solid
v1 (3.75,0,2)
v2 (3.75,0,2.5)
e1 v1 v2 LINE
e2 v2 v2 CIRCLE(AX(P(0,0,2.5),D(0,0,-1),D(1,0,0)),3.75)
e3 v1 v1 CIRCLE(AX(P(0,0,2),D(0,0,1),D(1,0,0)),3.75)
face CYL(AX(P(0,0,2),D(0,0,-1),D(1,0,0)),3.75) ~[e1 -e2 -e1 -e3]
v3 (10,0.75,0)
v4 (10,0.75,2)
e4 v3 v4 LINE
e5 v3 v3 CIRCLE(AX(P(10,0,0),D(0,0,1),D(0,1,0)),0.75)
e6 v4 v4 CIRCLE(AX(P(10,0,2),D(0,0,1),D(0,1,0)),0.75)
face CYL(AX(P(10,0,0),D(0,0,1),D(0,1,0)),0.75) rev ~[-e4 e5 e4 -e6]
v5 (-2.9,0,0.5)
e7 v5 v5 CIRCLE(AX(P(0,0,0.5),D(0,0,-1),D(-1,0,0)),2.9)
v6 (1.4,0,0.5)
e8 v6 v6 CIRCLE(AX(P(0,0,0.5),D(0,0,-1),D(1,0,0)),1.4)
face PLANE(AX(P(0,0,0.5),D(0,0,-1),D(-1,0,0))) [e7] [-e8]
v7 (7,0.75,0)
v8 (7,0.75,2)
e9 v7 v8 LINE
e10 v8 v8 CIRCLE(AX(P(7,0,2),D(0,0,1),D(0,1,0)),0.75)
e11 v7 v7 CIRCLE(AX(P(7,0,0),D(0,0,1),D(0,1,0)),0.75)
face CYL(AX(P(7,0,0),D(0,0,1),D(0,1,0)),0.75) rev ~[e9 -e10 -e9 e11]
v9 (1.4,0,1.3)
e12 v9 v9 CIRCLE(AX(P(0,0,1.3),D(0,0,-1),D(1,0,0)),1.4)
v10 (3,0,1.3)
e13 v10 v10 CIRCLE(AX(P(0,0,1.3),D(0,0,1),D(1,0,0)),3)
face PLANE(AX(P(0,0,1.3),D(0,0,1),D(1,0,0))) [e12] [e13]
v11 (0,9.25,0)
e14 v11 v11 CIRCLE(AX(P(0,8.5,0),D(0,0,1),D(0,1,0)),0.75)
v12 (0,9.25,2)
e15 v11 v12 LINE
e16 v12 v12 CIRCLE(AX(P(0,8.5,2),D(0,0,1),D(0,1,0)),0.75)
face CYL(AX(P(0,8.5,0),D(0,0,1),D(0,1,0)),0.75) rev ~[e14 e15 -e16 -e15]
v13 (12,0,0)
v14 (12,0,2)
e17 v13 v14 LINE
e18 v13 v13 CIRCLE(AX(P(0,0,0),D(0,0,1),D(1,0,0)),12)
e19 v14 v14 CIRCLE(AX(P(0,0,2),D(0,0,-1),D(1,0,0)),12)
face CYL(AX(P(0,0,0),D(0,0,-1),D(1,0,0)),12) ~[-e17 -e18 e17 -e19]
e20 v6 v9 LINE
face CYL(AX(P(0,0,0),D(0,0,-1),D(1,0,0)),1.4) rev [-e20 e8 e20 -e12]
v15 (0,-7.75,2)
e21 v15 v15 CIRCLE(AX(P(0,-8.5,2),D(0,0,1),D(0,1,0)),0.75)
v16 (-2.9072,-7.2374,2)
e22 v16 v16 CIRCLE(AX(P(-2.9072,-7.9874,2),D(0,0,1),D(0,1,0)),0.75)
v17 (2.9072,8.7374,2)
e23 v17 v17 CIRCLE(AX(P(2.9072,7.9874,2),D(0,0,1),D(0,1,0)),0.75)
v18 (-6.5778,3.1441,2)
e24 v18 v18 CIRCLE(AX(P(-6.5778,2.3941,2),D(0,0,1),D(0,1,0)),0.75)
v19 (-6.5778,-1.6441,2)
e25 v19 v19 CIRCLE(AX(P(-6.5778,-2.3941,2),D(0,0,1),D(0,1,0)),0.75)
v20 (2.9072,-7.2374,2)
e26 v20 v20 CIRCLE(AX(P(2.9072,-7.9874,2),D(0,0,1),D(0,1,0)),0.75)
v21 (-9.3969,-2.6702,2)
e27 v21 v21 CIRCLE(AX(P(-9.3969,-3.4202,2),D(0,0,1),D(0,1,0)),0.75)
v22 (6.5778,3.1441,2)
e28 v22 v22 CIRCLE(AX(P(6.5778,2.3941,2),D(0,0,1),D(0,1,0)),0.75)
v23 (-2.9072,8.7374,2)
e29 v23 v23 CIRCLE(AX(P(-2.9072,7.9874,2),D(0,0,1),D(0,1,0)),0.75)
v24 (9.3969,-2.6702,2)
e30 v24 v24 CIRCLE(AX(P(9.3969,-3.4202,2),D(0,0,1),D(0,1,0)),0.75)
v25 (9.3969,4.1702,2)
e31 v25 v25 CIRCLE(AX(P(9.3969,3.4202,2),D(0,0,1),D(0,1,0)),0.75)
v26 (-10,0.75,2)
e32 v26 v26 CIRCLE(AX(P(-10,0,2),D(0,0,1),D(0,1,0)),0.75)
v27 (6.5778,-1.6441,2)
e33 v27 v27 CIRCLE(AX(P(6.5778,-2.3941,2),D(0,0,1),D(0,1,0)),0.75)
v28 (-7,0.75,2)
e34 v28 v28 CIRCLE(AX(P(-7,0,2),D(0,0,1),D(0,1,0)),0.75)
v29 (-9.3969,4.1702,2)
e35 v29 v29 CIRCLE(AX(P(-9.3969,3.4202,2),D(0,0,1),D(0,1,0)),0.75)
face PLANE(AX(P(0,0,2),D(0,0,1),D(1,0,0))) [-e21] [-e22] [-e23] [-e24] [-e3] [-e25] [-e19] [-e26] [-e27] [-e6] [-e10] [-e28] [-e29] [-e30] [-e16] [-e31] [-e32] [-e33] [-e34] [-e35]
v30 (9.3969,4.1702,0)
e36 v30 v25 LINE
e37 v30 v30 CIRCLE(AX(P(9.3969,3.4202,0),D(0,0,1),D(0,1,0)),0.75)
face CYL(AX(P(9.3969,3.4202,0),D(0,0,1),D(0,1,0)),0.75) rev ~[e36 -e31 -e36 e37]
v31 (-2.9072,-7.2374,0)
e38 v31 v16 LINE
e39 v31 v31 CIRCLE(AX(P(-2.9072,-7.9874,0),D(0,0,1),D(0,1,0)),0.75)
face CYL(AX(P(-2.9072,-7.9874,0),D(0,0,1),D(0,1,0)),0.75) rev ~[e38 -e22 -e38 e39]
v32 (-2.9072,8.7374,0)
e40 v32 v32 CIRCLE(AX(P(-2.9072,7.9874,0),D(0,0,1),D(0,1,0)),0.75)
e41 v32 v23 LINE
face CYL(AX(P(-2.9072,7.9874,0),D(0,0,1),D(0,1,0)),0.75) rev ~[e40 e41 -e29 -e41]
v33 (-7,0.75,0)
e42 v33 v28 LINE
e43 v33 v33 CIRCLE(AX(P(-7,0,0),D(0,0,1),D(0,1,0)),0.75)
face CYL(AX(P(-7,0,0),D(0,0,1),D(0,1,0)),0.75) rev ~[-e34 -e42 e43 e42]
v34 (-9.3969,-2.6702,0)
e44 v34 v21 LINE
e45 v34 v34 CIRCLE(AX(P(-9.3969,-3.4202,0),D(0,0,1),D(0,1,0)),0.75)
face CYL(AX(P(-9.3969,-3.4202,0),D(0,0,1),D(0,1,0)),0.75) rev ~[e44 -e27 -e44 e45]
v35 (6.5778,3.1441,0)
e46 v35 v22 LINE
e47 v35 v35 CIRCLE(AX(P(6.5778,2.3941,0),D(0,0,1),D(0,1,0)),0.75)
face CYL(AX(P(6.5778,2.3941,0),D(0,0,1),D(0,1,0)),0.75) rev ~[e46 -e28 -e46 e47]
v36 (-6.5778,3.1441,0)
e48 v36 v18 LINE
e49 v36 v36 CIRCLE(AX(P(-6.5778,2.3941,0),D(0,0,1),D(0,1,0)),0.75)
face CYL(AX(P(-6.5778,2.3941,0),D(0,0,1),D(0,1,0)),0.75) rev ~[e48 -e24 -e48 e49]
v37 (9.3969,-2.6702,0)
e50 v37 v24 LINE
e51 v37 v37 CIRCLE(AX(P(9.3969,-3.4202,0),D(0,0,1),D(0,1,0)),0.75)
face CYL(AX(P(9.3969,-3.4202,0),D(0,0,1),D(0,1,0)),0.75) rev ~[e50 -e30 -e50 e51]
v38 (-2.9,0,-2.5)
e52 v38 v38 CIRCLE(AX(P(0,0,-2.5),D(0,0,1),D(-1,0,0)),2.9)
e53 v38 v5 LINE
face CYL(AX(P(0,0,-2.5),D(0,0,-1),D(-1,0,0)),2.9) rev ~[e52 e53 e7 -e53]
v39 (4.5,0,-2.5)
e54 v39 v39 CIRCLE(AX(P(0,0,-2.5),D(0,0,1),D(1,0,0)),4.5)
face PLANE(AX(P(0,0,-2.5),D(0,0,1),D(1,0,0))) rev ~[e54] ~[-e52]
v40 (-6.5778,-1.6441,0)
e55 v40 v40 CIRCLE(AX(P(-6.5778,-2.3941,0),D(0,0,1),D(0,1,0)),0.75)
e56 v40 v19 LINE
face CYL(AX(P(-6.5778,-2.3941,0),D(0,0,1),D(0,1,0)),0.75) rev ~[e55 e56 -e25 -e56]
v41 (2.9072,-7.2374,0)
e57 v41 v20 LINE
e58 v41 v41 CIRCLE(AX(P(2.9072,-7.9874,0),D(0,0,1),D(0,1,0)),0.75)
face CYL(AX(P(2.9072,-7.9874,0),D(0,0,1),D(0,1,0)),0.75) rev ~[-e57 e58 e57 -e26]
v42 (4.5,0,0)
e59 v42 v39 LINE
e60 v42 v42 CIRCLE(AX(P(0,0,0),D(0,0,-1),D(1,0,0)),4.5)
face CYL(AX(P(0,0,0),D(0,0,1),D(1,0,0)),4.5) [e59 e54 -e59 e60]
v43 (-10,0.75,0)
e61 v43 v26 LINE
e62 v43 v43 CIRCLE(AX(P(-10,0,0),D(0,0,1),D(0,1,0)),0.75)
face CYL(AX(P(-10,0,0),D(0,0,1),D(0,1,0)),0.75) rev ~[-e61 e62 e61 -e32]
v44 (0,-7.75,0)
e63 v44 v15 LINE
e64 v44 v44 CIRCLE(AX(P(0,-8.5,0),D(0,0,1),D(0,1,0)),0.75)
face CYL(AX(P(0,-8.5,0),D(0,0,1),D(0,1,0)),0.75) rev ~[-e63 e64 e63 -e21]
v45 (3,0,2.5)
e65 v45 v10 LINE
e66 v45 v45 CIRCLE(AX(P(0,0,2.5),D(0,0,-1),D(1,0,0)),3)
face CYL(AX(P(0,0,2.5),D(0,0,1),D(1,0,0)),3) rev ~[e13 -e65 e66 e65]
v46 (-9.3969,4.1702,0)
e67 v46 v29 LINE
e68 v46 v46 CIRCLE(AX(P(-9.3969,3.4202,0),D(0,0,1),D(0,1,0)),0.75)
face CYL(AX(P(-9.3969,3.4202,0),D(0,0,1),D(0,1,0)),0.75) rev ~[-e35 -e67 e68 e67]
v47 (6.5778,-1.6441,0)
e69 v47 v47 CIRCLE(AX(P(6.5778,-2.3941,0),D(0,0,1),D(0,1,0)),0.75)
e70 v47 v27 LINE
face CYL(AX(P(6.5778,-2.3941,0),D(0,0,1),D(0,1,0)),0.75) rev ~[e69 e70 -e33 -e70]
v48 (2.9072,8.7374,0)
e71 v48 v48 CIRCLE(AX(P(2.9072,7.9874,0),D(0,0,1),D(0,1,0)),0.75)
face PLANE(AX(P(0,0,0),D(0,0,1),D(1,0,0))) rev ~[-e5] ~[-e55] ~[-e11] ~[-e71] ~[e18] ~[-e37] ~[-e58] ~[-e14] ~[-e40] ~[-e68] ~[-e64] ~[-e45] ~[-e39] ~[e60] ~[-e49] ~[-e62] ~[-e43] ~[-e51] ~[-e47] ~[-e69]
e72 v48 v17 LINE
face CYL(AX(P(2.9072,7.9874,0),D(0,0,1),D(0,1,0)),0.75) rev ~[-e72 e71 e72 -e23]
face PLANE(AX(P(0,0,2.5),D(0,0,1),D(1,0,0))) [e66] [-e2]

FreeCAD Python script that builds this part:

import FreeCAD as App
import Part
import Sketcher
from FreeCAD import Vector
Q = App.Units.Quantity

doc = App.newDocument("Part")
params = doc.addObject("Spreadsheet::Sheet", "Params")
for row, (alias, value) in enumerate([
    ("sketch1_diameter", "24 mm"),
    ("pad1_length", "2 mm"),
    ("sketch2_diameter", "9 mm"),
    ("pad2_length", "2.5 mm"),
    ("sketch3_diameter", "5.8 mm"),
    ("pocket1_length", "3 mm"),
    ("sketch4_diameter", "7.5 mm"),
    ("pad3_length", "0.5 mm"),
    ("sketch5_diameter", "6 mm"),
    ("pocket2_length", "1.2 mm"),
    ("sketch6_diameter", "2.8 mm"),
    ("sketch7_diameter", "1.5 mm"),
    ("hole_diameter", "1.5 mm"),
    ("hole_depth", "8 mm"),
    ("sketch8_diameter", "1.5 mm"),
    ("hole2_diameter", "1.5 mm"),
    ("hole2_depth", "8 mm"),
], start=1):
    params.set(f"A{row}", alias)
    params.set(f"B{row}", "=" + value)
    params.setAlias(f"B{row}", alias)

body = doc.addObject("PartDesign::Body", "Body")

# Sketch on XY plane
sketch1 = body.newObject("Sketcher::SketchObject", "Sketch")
sketch1.AttachmentSupport = (doc.getObject("XY_Plane"), [""])
sketch1.MapMode = "FlatFace"
sketch1.addGeometry(Part.Circle(Vector(0, 0, 0), Vector(0, 0, 1), 12), False)
sketch1.addConstraint(Sketcher.Constraint("Coincident", 0, 3, -1, 1))
sketch1.addConstraint(Sketcher.Constraint("Diameter", 0, Q("24 mm")))
sketch1.setExpression("Constraints[1]", "Params.sketch1_diameter")
pad1 = body.newObject("PartDesign::Pad", "Pad")
pad1.Profile = sketch1
pad1.setExpression("Length", "Params.pad1_length")

# Sketch on XY plane
sketch2 = body.newObject("Sketcher::SketchObject", "Sketch001")
sketch2.AttachmentSupport = (doc.getObject("XY_Plane"), [""])
sketch2.MapMode = "FlatFace"
sketch2.addGeometry(Part.Circle(Vector(0, 0, 0), Vector(0, 0, 1), 4.5), False)
sketch2.addConstraint(Sketcher.Constraint("Coincident", 0, 3, -1, 1))
sketch2.addConstraint(Sketcher.Constraint("Diameter", 0, Q("9 mm")))
sketch2.setExpression("Constraints[1]", "Params.sketch2_diameter")
pad2 = body.newObject("PartDesign::Pad", "Pad001")
pad2.Profile = sketch2
pad2.setExpression("Length", "Params.pad2_length")
pad2.Reversed = True

# Sketch on XY plane
sketch3 = body.newObject("Sketcher::SketchObject", "Sketch002")
sketch3.AttachmentSupport = (doc.getObject("XY_Plane"), [""])
sketch3.MapMode = "FlatFace"
sketch3.AttachmentOffset = App.Placement(Vector(0, 0, -2.5), App.Rotation())
sketch3.addGeometry(Part.Circle(Vector(0, 0, 0), Vector(0, 0, 1), 2.9), False)
sketch3.addConstraint(Sketcher.Constraint("Coincident", 0, 3, -1, 1))
sketch3.addConstraint(Sketcher.Constraint("Diameter", 0, Q("5.8 mm")))
sketch3.setExpression("Constraints[1]", "Params.sketch3_diameter")
pocket1 = body.newObject("PartDesign::Pocket", "Pocket")
pocket1.Profile = sketch3
pocket1.setExpression("Length", "Params.pocket1_length")
pocket1.Reversed = True

# Sketch on XY plane
sketch4 = body.newObject("Sketcher::SketchObject", "Sketch003")
sketch4.AttachmentSupport = (doc.getObject("XY_Plane"), [""])
sketch4.MapMode = "FlatFace"
sketch4.AttachmentOffset = App.Placement(Vector(0, 0, 2), App.Rotation())
sketch4.addGeometry(Part.Circle(Vector(0, 0, 0), Vector(0, 0, 1), 3.8), False)
sketch4.addConstraint(Sketcher.Constraint("Coincident", 0, 3, -1, 1))
sketch4.addConstraint(Sketcher.Constraint("Diameter", 0, Q("7.5 mm")))
sketch4.setExpression("Constraints[1]", "Params.sketch4_diameter")
pad3 = body.newObject("PartDesign::Pad", "Pad002")
pad3.Profile = sketch4
pad3.setExpression("Length", "Params.pad3_length")

# Sketch on XY plane
sketch5 = body.newObject("Sketcher::SketchObject", "Sketch004")
sketch5.AttachmentSupport = (doc.getObject("XY_Plane"), [""])
sketch5.MapMode = "FlatFace"
sketch5.AttachmentOffset = App.Placement(Vector(0, 0, 2.5), App.Rotation())
sketch5.addGeometry(Part.Circle(Vector(0, 0, 0), Vector(0, 0, 1), 3), False)
sketch5.addConstraint(Sketcher.Constraint("Coincident", 0, 3, -1, 1))
sketch5.addConstraint(Sketcher.Constraint("Diameter", 0, Q("6 mm")))
sketch5.setExpression("Constraints[1]", "Params.sketch5_diameter")
pocket2 = body.newObject("PartDesign::Pocket", "Pocket001")
pocket2.Profile = sketch5
pocket2.setExpression("Length", "Params.pocket2_length")

# Sketch on XY plane
sketch6 = body.newObject("Sketcher::SketchObject", "Sketch005")
sketch6.AttachmentSupport = (doc.getObject("XY_Plane"), [""])
sketch6.MapMode = "FlatFace"
sketch6.addGeometry(Part.Circle(Vector(0, 0, 0), Vector(0, 0, 1), 1.4), False)
sketch6.addConstraint(Sketcher.Constraint("Coincident", 0, 3, -1, 1))
sketch6.addConstraint(Sketcher.Constraint("Diameter", 0, Q("2.8 mm")))
sketch6.setExpression("Constraints[1]", "Params.sketch6_diameter")
pocket3 = body.newObject("PartDesign::Pocket", "Pocket002")
pocket3.Profile = sketch6
pocket3.Type = "ThroughAll"
pocket3.Reversed = True

# Sketch on XY plane
sketch7 = body.newObject("Sketcher::SketchObject", "Sketch006")
sketch7.AttachmentSupport = (doc.getObject("XY_Plane"), [""])
sketch7.MapMode = "FlatFace"
sketch7.addGeometry(Part.Circle(Vector(0, 8.5, 0), Vector(0, 0, 1), 0.8), False)
sketch7.addGeometry(Part.Circle(Vector(0, -8.5, 0), Vector(0, 0, 1), 0.8), False)
sketch7.addGeometry(Part.Circle(Vector(2.9, 8, 0), Vector(0, 0, 1), 0.8), False)
sketch7.addGeometry(Part.Circle(Vector(-2.9, 8, 0), Vector(0, 0, 1), 0.8), False)
sketch7.addGeometry(Part.Circle(Vector(2.9, -8, 0), Vector(0, 0, 1), 0.8), False)
sketch7.addGeometry(Part.Circle(Vector(-2.9, -8, 0), Vector(0, 0, 1), 0.8), False)
sketch7.addConstraint(Sketcher.Constraint("Equal", 0, 1))
sketch7.addConstraint(Sketcher.Constraint("Equal", 1, 2))
sketch7.addConstraint(Sketcher.Constraint("Equal", 2, 3))
sketch7.addConstraint(Sketcher.Constraint("Equal", 3, 4))
sketch7.addConstraint(Sketcher.Constraint("Equal", 4, 5))
sketch7.addConstraint(Sketcher.Constraint("Symmetric", 0, 3, 1, 3, -1, 1))
sketch7.addConstraint(Sketcher.Constraint("Symmetric", 3, 3, 4, 3, -1, 1))
sketch7.addConstraint(Sketcher.Constraint("Symmetric", 2, 3, 5, 3, -1, 1))
sketch7.addConstraint(Sketcher.Constraint("Symmetric", 2, 3, 3, 3, -2))
sketch7.addConstraint(Sketcher.Constraint("PointOnObject", 0, 3, -2))
sketch7.addConstraint(Sketcher.Constraint("Diameter", 0, Q("1.5 mm")))
sketch7.addConstraint(Sketcher.Constraint("DistanceY", 1, 3, 0, 3, Q("17 mm")))
sketch7.addConstraint(Sketcher.Constraint("DistanceX", -1, 1, 2, 3, Q("2.9072 mm")))
sketch7.addConstraint(Sketcher.Constraint("DistanceY", -1, 1, 2, 3, Q("7.9874 mm")))
sketch7.setExpression("Constraints[10]", "Params.sketch7_diameter")
doc.recompute()
hole = body.newObject("PartDesign::Hole", "Hole")
hole.Profile = sketch7
hole.ThreadType = "None"
hole.setExpression("Diameter", "Params.hole_diameter")
hole.DepthType = "Dimension"
hole.setExpression("Depth", "Params.hole_depth")
hole.DrillPoint = "Angled"
hole.DrillPointAngle = 118
hole.Reversed = True

# Sketch on XY plane
sketch8 = body.newObject("Sketcher::SketchObject", "Sketch007")
sketch8.AttachmentSupport = (doc.getObject("XY_Plane"), [""])
sketch8.MapMode = "FlatFace"
sketch8.addGeometry(Part.Circle(Vector(-10, 0, 0), Vector(0, 0, 1), 0.8), False)
sketch8.addGeometry(Part.Circle(Vector(-9.4, 3.4, 0), Vector(0, 0, 1), 0.8), False)
sketch8.addGeometry(Part.Circle(Vector(-9.4, -3.4, 0), Vector(0, 0, 1), 0.8), False)
sketch8.addGeometry(Part.Circle(Vector(10, 0, 0), Vector(0, 0, 1), 0.8), False)
sketch8.addGeometry(Part.Circle(Vector(9.4, 3.4, 0), Vector(0, 0, 1), 0.8), False)
sketch8.addGeometry(Part.Circle(Vector(9.4, -3.4, 0), Vector(0, 0, 1), 0.8), False)
sketch8.addGeometry(Part.Circle(Vector(-6.6, 2.4, 0), Vector(0, 0, 1), 0.8), False)
sketch8.addGeometry(Part.Circle(Vector(-7, 0, 0), Vector(0, 0, 1), 0.8), False)
sketch8.addGeometry(Part.Circle(Vector(-6.6, -2.4, 0), Vector(0, 0, 1), 0.8), False)
sketch8.addGeometry(Part.Circle(Vector(6.6, 2.4, 0), Vector(0, 0, 1), 0.8), False)
sketch8.addGeometry(Part.Circle(Vector(7, 0, 0), Vector(0, 0, 1), 0.8), False)
sketch8.addGeometry(Part.Circle(Vector(6.6, -2.4, 0), Vector(0, 0, 1), 0.8), False)
sketch8.addConstraint(Sketcher.Constraint("Equal", 0, 1))
sketch8.addConstraint(Sketcher.Constraint("Equal", 1, 2))
sketch8.addConstraint(Sketcher.Constraint("Equal", 2, 3))
sketch8.addConstraint(Sketcher.Constraint("Equal", 3, 4))
sketch8.addConstraint(Sketcher.Constraint("Equal", 4, 5))
sketch8.addConstraint(Sketcher.Constraint("Equal", 5, 6))
sketch8.addConstraint(Sketcher.Constraint("Equal", 6, 7))
sketch8.addConstraint(Sketcher.Constraint("Equal", 7, 8))
sketch8.addConstraint(Sketcher.Constraint("Equal", 8, 9))
sketch8.addConstraint(Sketcher.Constraint("Equal", 9, 10))
sketch8.addConstraint(Sketcher.Constraint("Equal", 10, 11))
sketch8.addConstraint(Sketcher.Constraint("Symmetric", 0, 3, 3, 3, -1, 1))
sketch8.addConstraint(Sketcher.Constraint("Symmetric", 2, 3, 4, 3, -1, 1))
sketch8.addConstraint(Sketcher.Constraint("Symmetric", 1, 3, 5, 3, -1, 1))
sketch8.addConstraint(Sketcher.Constraint("Symmetric", 8, 3, 9, 3, -1, 1))
sketch8.addConstraint(Sketcher.Constraint("Symmetric", 7, 3, 10, 3, -1, 1))
sketch8.addConstraint(Sketcher.Constraint("Symmetric", 6, 3, 11, 3, -1, 1))
sketch8.addConstraint(Sketcher.Constraint("Symmetric", 1, 3, 4, 3, -2))
sketch8.addConstraint(Sketcher.Constraint("Symmetric", 6, 3, 9, 3, -2))
sketch8.addConstraint(Sketcher.Constraint("PointOnObject", 0, 3, -1))
sketch8.addConstraint(Sketcher.Constraint("PointOnObject", 7, 3, -1))
sketch8.addConstraint(Sketcher.Constraint("Diameter", 0, Q("1.5 mm")))
sketch8.addConstraint(Sketcher.Constraint("DistanceX", 0, 3, -1, 1, Q("10 mm")))
sketch8.addConstraint(Sketcher.Constraint("DistanceX", 7, 3, -1, 1, Q("7 mm")))
sketch8.addConstraint(Sketcher.Constraint("DistanceX", 1, 3, -1, 1, Q("9.397 mm")))
sketch8.addConstraint(Sketcher.Constraint("DistanceY", -1, 1, 6, 3, Q("2.394 mm")))
sketch8.addConstraint(Sketcher.Constraint("DistanceX", 1, 3, 6, 3, Q("2.819 mm")))
sketch8.addConstraint(Sketcher.Constraint("DistanceY", 6, 3, 1, 3, Q("1.026 mm")))
sketch8.setExpression("Constraints[21]", "Params.sketch8_diameter")
doc.recompute()
hole2 = body.newObject("PartDesign::Hole", "Hole001")
hole2.Profile = sketch8
hole2.ThreadType = "None"
hole2.setExpression("Diameter", "Params.hole2_diameter")
hole2.DepthType = "Dimension"
hole2.setExpression("Depth", "Params.hole2_depth")
hole2.DrillPoint = "Angled"
hole2.DrillPointAngle = 118
hole2.Reversed = True

doc.recompute()
